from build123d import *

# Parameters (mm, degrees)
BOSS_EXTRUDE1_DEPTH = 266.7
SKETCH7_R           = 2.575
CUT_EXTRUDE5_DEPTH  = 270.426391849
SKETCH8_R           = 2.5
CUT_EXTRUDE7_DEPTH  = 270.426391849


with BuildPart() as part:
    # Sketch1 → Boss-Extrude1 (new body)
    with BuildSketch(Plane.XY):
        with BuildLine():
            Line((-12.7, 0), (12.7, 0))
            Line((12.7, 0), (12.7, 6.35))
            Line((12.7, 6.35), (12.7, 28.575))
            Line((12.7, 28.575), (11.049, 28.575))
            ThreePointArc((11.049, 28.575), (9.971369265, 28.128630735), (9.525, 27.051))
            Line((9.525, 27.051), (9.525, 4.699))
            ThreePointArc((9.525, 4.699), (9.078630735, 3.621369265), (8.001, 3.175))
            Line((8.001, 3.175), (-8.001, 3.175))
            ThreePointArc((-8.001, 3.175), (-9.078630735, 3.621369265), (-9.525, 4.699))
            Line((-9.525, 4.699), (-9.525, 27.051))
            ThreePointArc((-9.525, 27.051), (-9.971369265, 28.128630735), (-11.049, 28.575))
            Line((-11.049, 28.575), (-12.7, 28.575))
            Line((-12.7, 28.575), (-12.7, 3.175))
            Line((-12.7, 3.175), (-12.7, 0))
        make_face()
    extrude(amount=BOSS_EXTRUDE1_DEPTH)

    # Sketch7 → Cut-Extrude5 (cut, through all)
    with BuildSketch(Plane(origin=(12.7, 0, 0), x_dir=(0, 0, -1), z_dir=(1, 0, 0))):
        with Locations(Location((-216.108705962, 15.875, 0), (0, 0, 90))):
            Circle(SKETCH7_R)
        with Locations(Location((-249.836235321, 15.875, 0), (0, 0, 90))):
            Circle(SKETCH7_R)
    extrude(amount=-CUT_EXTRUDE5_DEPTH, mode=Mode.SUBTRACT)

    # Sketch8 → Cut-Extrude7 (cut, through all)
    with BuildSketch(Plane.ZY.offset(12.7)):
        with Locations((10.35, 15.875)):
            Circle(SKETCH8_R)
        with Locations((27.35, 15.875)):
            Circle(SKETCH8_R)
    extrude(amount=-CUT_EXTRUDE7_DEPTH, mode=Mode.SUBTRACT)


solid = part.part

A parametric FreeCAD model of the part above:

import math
import FreeCAD as App
import Part
import Sketcher
Q = App.Units.Quantity

doc = App.newDocument("Part")
params = doc.addObject("Spreadsheet::Sheet", "Params")
for row, (alias, value) in enumerate([
    ("sketch1_width", "1 in"),
    ("sketch1_radius", "0.06 in"),
    ("sketch1_width2", "0.63 in"),
    ("sketch1_height", "0.88 in"),
    ("sketch1_height2", "1.125 in"),
    ("pad1_length", "10.5 in"),
], start=1):
    params.set(f"A{row}", alias)
    params.set(f"B{row}", "=" + value)
    params.setAlias(f"B{row}", alias)

body = doc.addObject("PartDesign::Body", "Body")

sketch1 = body.newObject("Sketcher::SketchObject", "Sketch")
sketch1.AttachmentSupport = (doc.getObject("XY_Plane"), [""])
sketch1.MapMode = "FlatFace"
sketch1.addGeometry(Part.LineSegment(App.Vector(-12.7, 0, 0), App.Vector(12.7, 0, 0)), False)
sketch1.addGeometry(Part.LineSegment(App.Vector(12.7, 0, 0), App.Vector(12.7, 28.6, 0)), False)
sketch1.addGeometry(Part.LineSegment(App.Vector(12.7, 28.6, 0), App.Vector(11, 28.6, 0)), False)
sketch1.addGeometry(Part.ArcOfCircle(Part.Circle(App.Vector(11, 27.1, 0), App.Vector(0, 0, 1), 1.5), math.radians(90), math.radians(180)), False)
sketch1.addGeometry(Part.LineSegment(App.Vector(9.5, 27.1, 0), App.Vector(9.5, 4.7, 0)), False)
sketch1.addGeometry(Part.ArcOfCircle(Part.Circle(App.Vector(8, 4.7, 0), App.Vector(0, 0, 1), 1.5), math.radians(-90), math.radians(0)), False)
sketch1.addGeometry(Part.LineSegment(App.Vector(8, 3.2, 0), App.Vector(-8, 3.2, 0)), False)
sketch1.addGeometry(Part.ArcOfCircle(Part.Circle(App.Vector(-8, 4.7, 0), App.Vector(0, 0, 1), 1.5), math.radians(180), math.radians(270)), False)
sketch1.addGeometry(Part.LineSegment(App.Vector(-9.5, 4.7, 0), App.Vector(-9.5, 27.1, 0)), False)
sketch1.addGeometry(Part.ArcOfCircle(Part.Circle(App.Vector(-11, 27.1, 0), App.Vector(0, 0, 1), 1.5), math.radians(0), math.radians(90)), False)
sketch1.addGeometry(Part.LineSegment(App.Vector(-11, 28.6, 0), App.Vector(-12.7, 28.6, 0)), False)
sketch1.addGeometry(Part.LineSegment(App.Vector(-12.7, 28.6, 0), App.Vector(-12.7, 0, 0)), False)
sketch1.addConstraint(Sketcher.Constraint("Coincident", 0, 2, 1, 1))
sketch1.addConstraint(Sketcher.Constraint("Coincident", 1, 2, 2, 1))
sketch1.addConstraint(Sketcher.Constraint("Tangent", 2, 2, 3, 1))
sketch1.addConstraint(Sketcher.Constraint("Tangent", 3, 2, 4, 1))
sketch1.addConstraint(Sketcher.Constraint("Tangent", 4, 2, 5, 2))
sketch1.addConstraint(Sketcher.Constraint("Tangent", 5, 1, 6, 1))
sketch1.addConstraint(Sketcher.Constraint("Tangent", 6, 2, 7, 2))
sketch1.addConstraint(Sketcher.Constraint("Tangent", 7, 1, 8, 1))
sketch1.addConstraint(Sketcher.Constraint("Tangent", 8, 2, 9, 1))
sketch1.addConstraint(Sketcher.Constraint("Tangent", 9, 2, 10, 1))
sketch1.addConstraint(Sketcher.Constraint("Coincident", 10, 2, 11, 1))
sketch1.addConstraint(Sketcher.Constraint("Coincident", 11, 2, 0, 1))
sketch1.addConstraint(Sketcher.Constraint("Horizontal", 0))
sketch1.addConstraint(Sketcher.Constraint("Vertical", 1))
sketch1.addConstraint(Sketcher.Constraint("Horizontal", 2))
sketch1.addConstraint(Sketcher.Constraint("Vertical", 4))
sketch1.addConstraint(Sketcher.Constraint("Horizontal", 6))
sketch1.addConstraint(Sketcher.Constraint("Vertical", 8))
sketch1.addConstraint(Sketcher.Constraint("Horizontal", 10))
sketch1.addConstraint(Sketcher.Constraint("Vertical", 11))
sketch1.addConstraint(Sketcher.Constraint("Equal", 3, 5))
sketch1.addConstraint(Sketcher.Constraint("Equal", 5, 7))
sketch1.addConstraint(Sketcher.Constraint("Equal", 7, 9))
sketch1.addConstraint(Sketcher.Constraint("Symmetric", 0, 2, 11, 2, -1, 1))
sketch1.addConstraint(Sketcher.Constraint("Symmetric", 3, 3, 9, 3, -2))
sketch1.addConstraint(Sketcher.Constraint("DistanceX", 0, 1, 0, 2, Q("1 in")))
sketch1.addConstraint(Sketcher.Constraint("Radius", 3, Q("0.06 in")))
sketch1.addConstraint(Sketcher.Constraint("DistanceX", 6, 2, 6, 1, Q("0.63 in")))
sketch1.addConstraint(Sketcher.Constraint("DistanceY", 4, 2, 4, 1, Q("0.88 in")))
sketch1.addConstraint(Sketcher.Constraint("DistanceY", 1, 1, 1, 2, Q("1.125 in")))
sketch1.setExpression("Constraints[25]", "Params.sketch1_width")
sketch1.setExpression("Constraints[26]", "Params.sketch1_radius")
sketch1.setExpression("Constraints[27]", "Params.sketch1_width2")
sketch1.setExpression("Constraints[28]", "Params.sketch1_height")
sketch1.setExpression("Constraints[29]", "Params.sketch1_height2")
pad1 = body.newObject("PartDesign::Pad", "Pad")
pad1.Profile = sketch1
pad1.setExpression("Length", "Params.pad1_length")

sketch2 = body.newObject("Sketcher::SketchObject", "Sketch001")
sketch2.AttachmentSupport = (doc.getObject("YZ_Plane"), [""])
sketch2.MapMode = "FlatFace"
sketch2.AttachmentOffset = App.Placement(App.Vector(0, 0, 0.5 * 25.4), App.Rotation())
sketch2.addGeometry(Part.Circle(App.Vector(15.9, 216.1, 0), App.Vector(0, 0, 1), 2.6), False)
sketch2.addGeometry(Part.Circle(App.Vector(15.9, 249.8, 0), App.Vector(0, 0, 1), 2.6), False)
sketch2.addConstraint(Sketcher.Constraint("Equal", 0, 1))
sketch2.addConstraint(Sketcher.Constraint("Vertical", 0, 3, 1, 3))
sketch2.addConstraint(Sketcher.Constraint("Diameter", 0, 5.15))
sketch2.addConstraint(Sketcher.Constraint("DistanceX", -1, 1, 0, 3, Q("0.625 in")))
sketch2.addConstraint(Sketcher.Constraint("DistanceY", 0, 3, 1, 3, 33.727529))
sketch2.addConstraint(Sketcher.Constraint("DistanceY", -1, 1, 0, 3, 216.108706))
pocket1 = body.newObject("PartDesign::Pocket", "Pocket")
pocket1.Profile = sketch2
pocket1.Type = "ThroughAll"

sketch3 = body.newObject("Sketcher::SketchObject", "Sketch002")
sketch3.AttachmentSupport = (doc.getObject("YZ_Plane"), [""])
sketch3.MapMode = "FlatFace"
sketch3.AttachmentOffset = App.Placement(App.Vector(0, 0, -0.5 * 25.4), App.Rotation())
sketch3.addGeometry(Part.Circle(App.Vector(15.9, 10.3, 0), App.Vector(0, 0, 1), 2.5), False)
sketch3.addGeometry(Part.Circle(App.Vector(15.9, 27.4, 0), App.Vector(0, 0, 1), 2.5), False)
sketch3.addConstraint(Sketcher.Constraint("Equal", 0, 1))
sketch3.addConstraint(Sketcher.Constraint("Vertical", 0, 3, 1, 3))
sketch3.addConstraint(Sketcher.Constraint("Diameter", 0, 5.0))
sketch3.addConstraint(Sketcher.Constraint("DistanceX", -1, 1, 0, 3, Q("0.625 in")))
sketch3.addConstraint(Sketcher.Constraint("DistanceY", -1, 1, 0, 3, 10.35))
sketch3.addConstraint(Sketcher.Constraint("DistanceY", -1, 1, 1, 3, 27.35))
pocket2 = body.newObject("PartDesign::Pocket", "Pocket001")
pocket2.Profile = sketch3
pocket2.Type = "ThroughAll"
pocket2.Reversed = True

doc.recompute()
